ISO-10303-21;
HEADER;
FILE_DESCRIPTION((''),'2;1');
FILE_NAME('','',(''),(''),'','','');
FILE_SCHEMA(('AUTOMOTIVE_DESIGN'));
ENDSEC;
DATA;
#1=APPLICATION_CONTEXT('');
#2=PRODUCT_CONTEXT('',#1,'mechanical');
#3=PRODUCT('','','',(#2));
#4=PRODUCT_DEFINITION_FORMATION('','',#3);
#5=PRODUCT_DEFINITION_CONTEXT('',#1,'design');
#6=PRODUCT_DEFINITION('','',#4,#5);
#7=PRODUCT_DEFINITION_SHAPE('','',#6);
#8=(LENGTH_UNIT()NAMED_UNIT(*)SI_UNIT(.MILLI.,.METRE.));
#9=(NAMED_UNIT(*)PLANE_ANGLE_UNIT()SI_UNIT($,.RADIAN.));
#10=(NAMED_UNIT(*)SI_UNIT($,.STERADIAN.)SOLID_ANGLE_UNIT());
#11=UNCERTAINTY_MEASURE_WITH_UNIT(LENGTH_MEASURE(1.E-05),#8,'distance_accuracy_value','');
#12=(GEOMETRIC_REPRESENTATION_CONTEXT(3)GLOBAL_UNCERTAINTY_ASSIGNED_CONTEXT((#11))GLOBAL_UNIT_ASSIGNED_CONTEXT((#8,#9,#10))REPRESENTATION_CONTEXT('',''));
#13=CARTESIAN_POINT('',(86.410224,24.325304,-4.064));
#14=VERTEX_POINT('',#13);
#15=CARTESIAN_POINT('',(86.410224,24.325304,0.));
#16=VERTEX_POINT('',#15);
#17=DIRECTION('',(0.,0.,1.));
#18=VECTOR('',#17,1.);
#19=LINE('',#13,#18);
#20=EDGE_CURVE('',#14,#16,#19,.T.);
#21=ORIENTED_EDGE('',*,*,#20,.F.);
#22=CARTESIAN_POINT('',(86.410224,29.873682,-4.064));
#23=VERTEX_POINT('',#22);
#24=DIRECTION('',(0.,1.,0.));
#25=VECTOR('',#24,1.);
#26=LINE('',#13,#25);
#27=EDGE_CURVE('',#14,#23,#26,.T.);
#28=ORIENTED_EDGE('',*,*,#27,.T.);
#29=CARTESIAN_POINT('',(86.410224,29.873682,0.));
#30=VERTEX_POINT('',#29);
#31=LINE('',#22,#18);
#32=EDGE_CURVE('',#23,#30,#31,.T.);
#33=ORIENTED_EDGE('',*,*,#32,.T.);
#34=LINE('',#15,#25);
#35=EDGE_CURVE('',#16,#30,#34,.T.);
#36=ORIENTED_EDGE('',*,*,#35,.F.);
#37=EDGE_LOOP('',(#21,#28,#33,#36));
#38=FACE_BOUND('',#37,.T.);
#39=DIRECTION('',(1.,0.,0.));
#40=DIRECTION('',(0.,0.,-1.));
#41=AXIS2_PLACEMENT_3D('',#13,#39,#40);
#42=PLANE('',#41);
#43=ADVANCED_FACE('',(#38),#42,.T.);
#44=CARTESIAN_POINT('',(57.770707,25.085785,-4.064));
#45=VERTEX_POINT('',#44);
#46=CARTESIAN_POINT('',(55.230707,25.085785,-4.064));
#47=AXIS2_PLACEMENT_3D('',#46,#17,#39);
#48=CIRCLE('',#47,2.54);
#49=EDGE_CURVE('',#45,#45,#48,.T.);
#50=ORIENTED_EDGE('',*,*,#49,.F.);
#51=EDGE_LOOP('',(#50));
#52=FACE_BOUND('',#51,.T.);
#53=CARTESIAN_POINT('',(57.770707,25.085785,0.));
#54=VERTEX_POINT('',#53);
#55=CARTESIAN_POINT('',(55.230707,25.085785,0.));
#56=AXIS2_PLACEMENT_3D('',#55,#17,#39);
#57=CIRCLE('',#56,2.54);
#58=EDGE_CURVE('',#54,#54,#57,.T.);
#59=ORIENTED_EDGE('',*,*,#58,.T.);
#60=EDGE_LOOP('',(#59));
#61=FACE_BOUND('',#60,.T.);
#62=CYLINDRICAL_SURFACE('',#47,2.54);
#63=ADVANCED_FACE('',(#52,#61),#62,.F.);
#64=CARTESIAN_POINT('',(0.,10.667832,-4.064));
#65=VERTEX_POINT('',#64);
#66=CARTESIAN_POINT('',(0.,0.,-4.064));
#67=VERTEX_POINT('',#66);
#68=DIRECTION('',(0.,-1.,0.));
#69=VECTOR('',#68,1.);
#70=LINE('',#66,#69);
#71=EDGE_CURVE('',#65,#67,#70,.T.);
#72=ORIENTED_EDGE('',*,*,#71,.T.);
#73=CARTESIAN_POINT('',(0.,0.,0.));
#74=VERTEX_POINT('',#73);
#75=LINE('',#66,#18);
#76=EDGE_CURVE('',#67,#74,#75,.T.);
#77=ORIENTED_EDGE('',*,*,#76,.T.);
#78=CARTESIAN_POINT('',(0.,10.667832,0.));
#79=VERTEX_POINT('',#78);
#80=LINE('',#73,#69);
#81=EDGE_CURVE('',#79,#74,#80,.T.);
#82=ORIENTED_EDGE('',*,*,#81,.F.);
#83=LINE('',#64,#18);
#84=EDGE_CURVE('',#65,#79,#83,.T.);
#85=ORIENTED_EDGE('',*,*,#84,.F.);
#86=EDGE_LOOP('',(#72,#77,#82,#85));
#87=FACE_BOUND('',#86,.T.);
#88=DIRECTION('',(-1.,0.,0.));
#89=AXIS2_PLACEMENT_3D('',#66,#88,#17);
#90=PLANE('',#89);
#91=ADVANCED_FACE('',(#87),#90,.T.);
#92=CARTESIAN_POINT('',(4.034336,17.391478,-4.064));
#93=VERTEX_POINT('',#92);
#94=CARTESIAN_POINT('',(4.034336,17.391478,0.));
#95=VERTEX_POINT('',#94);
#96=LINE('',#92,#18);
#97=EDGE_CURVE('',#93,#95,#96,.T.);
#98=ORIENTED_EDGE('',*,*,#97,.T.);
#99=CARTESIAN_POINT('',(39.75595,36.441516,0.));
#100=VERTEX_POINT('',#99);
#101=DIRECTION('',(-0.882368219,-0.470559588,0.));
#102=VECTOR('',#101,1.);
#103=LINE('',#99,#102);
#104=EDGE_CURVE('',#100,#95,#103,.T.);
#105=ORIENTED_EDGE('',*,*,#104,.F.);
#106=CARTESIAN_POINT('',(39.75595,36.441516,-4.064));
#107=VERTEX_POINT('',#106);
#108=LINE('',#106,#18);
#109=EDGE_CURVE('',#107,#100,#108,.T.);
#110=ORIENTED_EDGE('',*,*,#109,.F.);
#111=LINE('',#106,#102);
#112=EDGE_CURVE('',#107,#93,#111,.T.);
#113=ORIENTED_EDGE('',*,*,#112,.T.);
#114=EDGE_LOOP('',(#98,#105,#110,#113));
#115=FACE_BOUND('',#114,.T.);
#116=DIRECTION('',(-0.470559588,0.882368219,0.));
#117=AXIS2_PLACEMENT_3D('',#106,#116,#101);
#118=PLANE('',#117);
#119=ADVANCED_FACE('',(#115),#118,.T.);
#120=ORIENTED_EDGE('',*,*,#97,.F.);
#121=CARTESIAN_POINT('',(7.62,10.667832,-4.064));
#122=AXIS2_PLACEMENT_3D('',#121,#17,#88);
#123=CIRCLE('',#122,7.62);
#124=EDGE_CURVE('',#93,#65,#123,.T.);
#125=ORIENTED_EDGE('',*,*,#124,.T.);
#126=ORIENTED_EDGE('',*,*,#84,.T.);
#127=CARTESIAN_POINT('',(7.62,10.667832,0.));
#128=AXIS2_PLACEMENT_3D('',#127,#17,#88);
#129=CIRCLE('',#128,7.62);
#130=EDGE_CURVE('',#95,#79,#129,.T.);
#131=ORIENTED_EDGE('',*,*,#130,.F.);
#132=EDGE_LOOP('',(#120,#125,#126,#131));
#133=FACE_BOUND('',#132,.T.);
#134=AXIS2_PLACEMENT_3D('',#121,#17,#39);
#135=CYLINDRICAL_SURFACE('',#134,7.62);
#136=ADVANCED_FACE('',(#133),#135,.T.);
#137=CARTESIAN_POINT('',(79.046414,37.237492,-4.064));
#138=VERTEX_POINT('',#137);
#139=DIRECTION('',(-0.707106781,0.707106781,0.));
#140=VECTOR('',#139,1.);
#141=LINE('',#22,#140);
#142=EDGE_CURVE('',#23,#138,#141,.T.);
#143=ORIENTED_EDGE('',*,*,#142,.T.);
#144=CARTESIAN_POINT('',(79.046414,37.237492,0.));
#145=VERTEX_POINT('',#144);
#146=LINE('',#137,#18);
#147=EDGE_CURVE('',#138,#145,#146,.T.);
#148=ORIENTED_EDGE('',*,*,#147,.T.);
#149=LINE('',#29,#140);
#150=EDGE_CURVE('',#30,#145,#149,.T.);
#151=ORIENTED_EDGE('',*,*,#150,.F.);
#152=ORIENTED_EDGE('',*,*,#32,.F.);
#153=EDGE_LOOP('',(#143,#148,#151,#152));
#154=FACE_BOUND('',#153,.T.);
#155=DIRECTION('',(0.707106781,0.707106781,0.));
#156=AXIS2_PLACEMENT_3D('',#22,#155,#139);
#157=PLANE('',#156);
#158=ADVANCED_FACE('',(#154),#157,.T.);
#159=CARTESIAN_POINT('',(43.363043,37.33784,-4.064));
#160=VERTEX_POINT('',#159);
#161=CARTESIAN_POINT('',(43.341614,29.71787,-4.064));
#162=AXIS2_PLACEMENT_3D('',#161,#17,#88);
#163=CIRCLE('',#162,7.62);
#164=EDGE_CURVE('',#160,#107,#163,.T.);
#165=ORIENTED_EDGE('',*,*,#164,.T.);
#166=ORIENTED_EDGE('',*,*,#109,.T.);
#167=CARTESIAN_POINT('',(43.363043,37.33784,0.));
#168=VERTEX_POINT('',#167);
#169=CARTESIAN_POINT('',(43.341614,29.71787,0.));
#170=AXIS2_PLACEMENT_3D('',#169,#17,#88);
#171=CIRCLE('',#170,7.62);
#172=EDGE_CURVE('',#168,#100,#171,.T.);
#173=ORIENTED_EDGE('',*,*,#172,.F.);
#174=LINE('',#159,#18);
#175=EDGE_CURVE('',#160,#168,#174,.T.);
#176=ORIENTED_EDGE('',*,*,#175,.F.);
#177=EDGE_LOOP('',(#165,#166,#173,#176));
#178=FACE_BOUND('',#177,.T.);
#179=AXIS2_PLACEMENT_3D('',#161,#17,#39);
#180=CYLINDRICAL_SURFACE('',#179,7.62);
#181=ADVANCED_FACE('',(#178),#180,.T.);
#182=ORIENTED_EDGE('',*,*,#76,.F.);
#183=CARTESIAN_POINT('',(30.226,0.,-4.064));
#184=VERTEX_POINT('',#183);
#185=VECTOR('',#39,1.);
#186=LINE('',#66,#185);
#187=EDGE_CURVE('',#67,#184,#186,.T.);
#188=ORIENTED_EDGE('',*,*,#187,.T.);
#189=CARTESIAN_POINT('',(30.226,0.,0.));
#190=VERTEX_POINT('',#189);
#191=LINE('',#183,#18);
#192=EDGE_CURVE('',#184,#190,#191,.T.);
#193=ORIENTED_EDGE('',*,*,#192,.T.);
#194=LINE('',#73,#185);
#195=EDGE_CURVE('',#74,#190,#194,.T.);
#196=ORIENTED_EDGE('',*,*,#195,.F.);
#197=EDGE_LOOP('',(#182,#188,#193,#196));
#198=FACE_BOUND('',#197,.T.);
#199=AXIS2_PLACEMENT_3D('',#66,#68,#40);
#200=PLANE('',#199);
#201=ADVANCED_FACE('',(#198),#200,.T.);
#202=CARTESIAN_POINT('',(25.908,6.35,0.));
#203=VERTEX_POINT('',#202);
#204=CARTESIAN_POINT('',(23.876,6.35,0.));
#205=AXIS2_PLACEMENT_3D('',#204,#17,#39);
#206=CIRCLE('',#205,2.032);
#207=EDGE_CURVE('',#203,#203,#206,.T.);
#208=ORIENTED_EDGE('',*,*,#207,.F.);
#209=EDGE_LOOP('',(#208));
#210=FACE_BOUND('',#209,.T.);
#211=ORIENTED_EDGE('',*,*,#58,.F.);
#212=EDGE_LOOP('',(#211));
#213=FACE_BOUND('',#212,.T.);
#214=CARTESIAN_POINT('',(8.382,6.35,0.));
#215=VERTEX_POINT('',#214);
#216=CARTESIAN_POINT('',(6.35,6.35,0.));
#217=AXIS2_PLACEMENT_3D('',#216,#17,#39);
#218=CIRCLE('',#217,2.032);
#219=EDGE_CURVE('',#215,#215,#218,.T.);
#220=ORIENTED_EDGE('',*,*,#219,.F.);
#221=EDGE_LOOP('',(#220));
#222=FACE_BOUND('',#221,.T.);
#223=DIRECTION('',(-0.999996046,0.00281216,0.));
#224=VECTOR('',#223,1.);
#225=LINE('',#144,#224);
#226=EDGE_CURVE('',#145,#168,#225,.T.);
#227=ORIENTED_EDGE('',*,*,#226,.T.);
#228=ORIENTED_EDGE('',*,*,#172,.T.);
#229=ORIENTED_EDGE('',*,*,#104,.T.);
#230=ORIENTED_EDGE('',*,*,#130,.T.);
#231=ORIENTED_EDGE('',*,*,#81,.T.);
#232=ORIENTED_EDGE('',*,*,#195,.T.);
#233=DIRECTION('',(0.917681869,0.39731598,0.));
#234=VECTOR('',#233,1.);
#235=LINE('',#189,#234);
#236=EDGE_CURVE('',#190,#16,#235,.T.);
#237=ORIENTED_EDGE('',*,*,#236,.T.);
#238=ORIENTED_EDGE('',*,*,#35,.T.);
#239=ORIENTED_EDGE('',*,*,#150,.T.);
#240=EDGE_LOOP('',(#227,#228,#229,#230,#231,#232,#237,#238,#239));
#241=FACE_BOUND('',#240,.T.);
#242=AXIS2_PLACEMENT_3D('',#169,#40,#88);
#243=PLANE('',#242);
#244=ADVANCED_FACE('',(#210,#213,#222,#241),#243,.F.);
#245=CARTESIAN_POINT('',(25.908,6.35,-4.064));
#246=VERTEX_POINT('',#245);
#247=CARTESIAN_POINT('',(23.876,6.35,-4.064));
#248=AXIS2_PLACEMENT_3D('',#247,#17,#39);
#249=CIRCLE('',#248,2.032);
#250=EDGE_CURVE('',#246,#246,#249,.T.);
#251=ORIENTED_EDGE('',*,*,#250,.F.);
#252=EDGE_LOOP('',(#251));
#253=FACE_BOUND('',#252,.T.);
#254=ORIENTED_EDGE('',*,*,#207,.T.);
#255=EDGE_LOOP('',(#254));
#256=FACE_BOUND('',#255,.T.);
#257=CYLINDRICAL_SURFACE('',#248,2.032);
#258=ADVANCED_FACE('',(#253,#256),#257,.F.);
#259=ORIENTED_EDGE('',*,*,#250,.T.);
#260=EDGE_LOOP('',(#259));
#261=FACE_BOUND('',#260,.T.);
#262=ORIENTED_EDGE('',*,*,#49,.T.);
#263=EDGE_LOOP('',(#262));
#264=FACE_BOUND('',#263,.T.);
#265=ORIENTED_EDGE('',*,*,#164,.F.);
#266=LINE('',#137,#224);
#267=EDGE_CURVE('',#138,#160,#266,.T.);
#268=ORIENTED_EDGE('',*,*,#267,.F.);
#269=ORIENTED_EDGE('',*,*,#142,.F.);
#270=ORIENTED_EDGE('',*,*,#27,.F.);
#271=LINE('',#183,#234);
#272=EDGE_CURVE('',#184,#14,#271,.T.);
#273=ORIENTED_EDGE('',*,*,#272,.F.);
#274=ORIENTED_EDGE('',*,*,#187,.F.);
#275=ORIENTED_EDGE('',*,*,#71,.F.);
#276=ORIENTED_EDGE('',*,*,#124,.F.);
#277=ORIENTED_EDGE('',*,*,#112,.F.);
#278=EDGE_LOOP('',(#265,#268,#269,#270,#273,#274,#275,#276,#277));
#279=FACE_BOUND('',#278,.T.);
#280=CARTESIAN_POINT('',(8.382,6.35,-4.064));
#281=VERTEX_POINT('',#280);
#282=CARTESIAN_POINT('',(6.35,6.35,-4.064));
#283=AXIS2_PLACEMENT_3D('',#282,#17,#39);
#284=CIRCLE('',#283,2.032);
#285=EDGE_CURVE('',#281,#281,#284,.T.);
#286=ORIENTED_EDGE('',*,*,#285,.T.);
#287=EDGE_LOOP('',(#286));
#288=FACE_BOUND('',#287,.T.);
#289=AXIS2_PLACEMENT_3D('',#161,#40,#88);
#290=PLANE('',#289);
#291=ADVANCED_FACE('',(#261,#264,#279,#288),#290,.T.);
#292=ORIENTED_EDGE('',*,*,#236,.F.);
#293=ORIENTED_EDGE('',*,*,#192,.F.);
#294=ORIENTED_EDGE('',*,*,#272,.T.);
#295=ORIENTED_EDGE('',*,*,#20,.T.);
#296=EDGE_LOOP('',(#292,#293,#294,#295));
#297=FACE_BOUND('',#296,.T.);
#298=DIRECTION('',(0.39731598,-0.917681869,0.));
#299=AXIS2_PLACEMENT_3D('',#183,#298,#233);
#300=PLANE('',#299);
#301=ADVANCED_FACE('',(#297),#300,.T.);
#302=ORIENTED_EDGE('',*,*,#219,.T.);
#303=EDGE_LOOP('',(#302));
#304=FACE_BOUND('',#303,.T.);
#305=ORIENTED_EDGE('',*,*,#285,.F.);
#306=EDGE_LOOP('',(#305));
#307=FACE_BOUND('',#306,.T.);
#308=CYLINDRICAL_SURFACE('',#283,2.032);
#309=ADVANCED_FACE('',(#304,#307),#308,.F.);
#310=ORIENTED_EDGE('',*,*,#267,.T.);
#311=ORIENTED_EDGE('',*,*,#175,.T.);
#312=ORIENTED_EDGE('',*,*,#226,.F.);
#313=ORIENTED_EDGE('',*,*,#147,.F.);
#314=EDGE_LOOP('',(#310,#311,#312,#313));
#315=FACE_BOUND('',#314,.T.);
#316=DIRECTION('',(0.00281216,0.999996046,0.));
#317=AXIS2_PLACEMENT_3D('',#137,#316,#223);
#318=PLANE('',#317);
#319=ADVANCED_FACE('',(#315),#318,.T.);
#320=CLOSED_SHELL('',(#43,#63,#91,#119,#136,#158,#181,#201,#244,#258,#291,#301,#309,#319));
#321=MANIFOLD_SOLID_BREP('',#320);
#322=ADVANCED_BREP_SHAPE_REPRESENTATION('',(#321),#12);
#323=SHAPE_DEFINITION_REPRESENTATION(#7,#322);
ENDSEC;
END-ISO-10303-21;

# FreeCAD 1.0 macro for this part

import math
import FreeCAD as App
import Part
import Sketcher
from FreeCAD import Vector
Q = App.Units.Quantity

doc = App.newDocument("Part")
body = doc.addObject("PartDesign::Body", "Body")

# Sketch on XY plane
sketch1 = body.newObject("Sketcher::SketchObject", "Sketch")
sketch1.AttachmentSupport = (doc.getObject("XY_Plane"), [""])
sketch1.MapMode = "FlatFace"
sketch1.addGeometry([
    Part.LineSegment(Vector(0, 10.7, 0), Vector(0, 0, 0)),  # 0
    Part.LineSegment(Vector(0, 0, 0), Vector(30.2, 0, 0)),  # 1
    Part.LineSegment(Vector(30.2, 0, 0), Vector(86.4, 24.3, 0)),  # 2
    Part.LineSegment(Vector(86.4, 24.3, 0), Vector(86.4, 29.9, 0)),  # 3
    Part.LineSegment(Vector(86.4, 29.9, 0), Vector(79, 37.2, 0)),  # 4
    Part.LineSegment(Vector(79, 37.2, 0), Vector(43.4, 37.3, 0)),  # 5
    Part.ArcOfCircle(Part.Circle(Vector(43.3, 29.7, 0), Vector(0, 0, 1), 7.6), math.radians(90), math.radians(118)),  # 6
    Part.LineSegment(Vector(39.8, 36.4, 0), Vector(4, 17.4, 0)),  # 7
    Part.ArcOfCircle(Part.Circle(Vector(7.6, 10.7, 0), Vector(0, 0, 1), 7.6), math.radians(118), math.radians(180)),  # 8
    Part.Circle(Vector(23.9, 6.3, 0), Vector(0, 0, 1), 2),  # 9
    Part.Circle(Vector(6.3, 6.3, 0), Vector(0, 0, 1), 2),  # 10
    Part.Circle(Vector(55.2, 25.1, 0), Vector(0, 0, 1), 2.5),  # 11
], False)
sketch1.addConstraint([
    Sketcher.Constraint("Coincident", 0, 2, 1, 1),
    Sketcher.Constraint("Coincident", 1, 2, 2, 1),
    Sketcher.Constraint("Coincident", 2, 2, 3, 1),
    Sketcher.Constraint("Coincident", 3, 2, 4, 1),
    Sketcher.Constraint("Coincident", 4, 2, 5, 1),
    Sketcher.Constraint("Tangent", 5, 2, 6, 1),
    Sketcher.Constraint("Tangent", 6, 2, 7, 1),
    Sketcher.Constraint("Tangent", 7, 2, 8, 1),
    Sketcher.Constraint("Tangent", 8, 2, 0, 1),
    Sketcher.Constraint("Vertical", 0),
    Sketcher.Constraint("Horizontal", 1),
    Sketcher.Constraint("Vertical", 3),
    Sketcher.Constraint("Coincident", 0, 2, -1, 1),
    Sketcher.Constraint("Equal", 6, 8),
    Sketcher.Constraint("Equal", 9, 10),
    Sketcher.Constraint("Horizontal", 9, 3, 10, 3),
    Sketcher.Constraint("Diameter", 11, Q("0.2 in")),
    Sketcher.Constraint("Radius", 6, Q("0.3 in")),
    Sketcher.Constraint("Diameter", 9, Q("0.16 in")),
    Sketcher.Constraint("Angle", 4, Q("135 deg")),
    Sketcher.Constraint("DistanceX", 1, 1, 1, 2, Q("1.19 in")),
    Sketcher.Constraint("Distance", 4, Q("0.41 in")),
    Sketcher.Constraint("DistanceX", -1, 1, 9, 3, Q("0.94 in")),
    Sketcher.Constraint("DistanceY", -1, 1, 9, 3, Q("0.25 in")),
    Sketcher.Constraint("DistanceX", -1, 1, 10, 3, Q("0.25 in")),
    Sketcher.Constraint("DistanceY", 11, 3, 3, 2, Q("0.1884999 in")),
    Sketcher.Constraint("DistanceY", 0, 2, 0, 1, 10.667832),
    Sketcher.Constraint("DistanceY", 3, 1, 3, 2, 5.548378),
    Sketcher.Constraint("DistanceX", 6, 3, 4, 2, 35.7048),
    Sketcher.Constraint("DistanceY", -1, 1, 6, 3, 29.71787),
    Sketcher.Constraint("DistanceY", -1, 1, 3, 2, 29.873682),
    Sketcher.Constraint("DistanceX", -1, 1, 6, 2, 39.75595),
    Sketcher.Constraint("DistanceX", -1, 1, 11, 3, 55.230707),
])
pad1 = body.newObject("PartDesign::Pad", "Pad")
pad1.Profile = sketch1
pad1.Length = Q("0.16 in")
pad1.Reversed = True

doc.recompute()
